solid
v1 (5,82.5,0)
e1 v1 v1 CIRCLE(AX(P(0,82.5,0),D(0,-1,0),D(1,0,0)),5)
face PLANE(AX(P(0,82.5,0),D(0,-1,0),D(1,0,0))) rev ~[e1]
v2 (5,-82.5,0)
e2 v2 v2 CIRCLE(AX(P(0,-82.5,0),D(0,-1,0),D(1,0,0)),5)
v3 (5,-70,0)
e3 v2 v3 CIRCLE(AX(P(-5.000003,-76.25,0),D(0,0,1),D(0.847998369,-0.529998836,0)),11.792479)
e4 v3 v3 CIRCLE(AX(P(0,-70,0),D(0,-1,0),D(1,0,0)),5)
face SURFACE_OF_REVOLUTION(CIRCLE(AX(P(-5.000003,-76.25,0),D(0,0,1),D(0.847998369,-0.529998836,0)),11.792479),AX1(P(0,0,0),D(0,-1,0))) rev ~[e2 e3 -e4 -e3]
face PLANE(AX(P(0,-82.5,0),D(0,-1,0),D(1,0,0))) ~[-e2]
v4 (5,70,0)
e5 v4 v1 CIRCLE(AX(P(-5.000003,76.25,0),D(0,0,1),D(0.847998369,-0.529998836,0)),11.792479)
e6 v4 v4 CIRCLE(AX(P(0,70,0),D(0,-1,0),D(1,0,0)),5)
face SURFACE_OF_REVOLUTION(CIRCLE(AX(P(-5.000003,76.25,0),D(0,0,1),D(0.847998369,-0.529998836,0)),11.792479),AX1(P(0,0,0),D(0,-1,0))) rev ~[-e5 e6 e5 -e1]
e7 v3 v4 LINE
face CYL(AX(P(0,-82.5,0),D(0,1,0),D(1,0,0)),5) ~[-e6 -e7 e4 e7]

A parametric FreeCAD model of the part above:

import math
import FreeCAD as App
import Part
import Sketcher
from FreeCAD import Vector

doc = App.newDocument("Part")
params = doc.addObject("Spreadsheet::Sheet", "Params")
for row, (alias, value) in enumerate([
    ("sketch1_width", "5 mm"),
    ("sketch1_height", "165 mm"),
    ("sketch1_height2", "140 mm"),
    ("revolution_angle", "360 deg"),
], start=1):
    params.set(f"A{row}", alias)
    params.set(f"B{row}", "=" + value)
    params.setAlias(f"B{row}", alias)

body = doc.addObject("PartDesign::Body", "Body")

sketch1 = body.newObject("Sketcher::SketchObject", "Sketch")
sketch1.AttachmentSupport = (doc.getObject("XY_Plane"), [""])
sketch1.MapMode = "FlatFace"
sketch1.addGeometry([
    Part.LineSegment(Vector(5, 82, 0), Vector(0, 82, 0)),
    Part.LineSegment(Vector(0, 82, 0), Vector(0, -82, 0)),
    Part.LineSegment(Vector(0, -82, 0), Vector(5, -82, 0)),
    Part.ArcOfCircle(Part.Circle(Vector(-5, -76, 0), Vector(0, 0, 1), 12), math.radians(-32), math.radians(32)),
    Part.LineSegment(Vector(5, -70, 0), Vector(5, 70, 0)),
    Part.ArcOfCircle(Part.Circle(Vector(-5, 76, 0), Vector(0, 0, 1), 12), math.radians(-32), math.radians(32)),
], False)
sketch1.addConstraint([
    Sketcher.Constraint("Coincident", 0, 2, 1, 1),
    Sketcher.Constraint("Coincident", 1, 2, 2, 1),
    Sketcher.Constraint("Coincident", 2, 2, 3, 1),
    Sketcher.Constraint("Coincident", 3, 2, 4, 1),
    Sketcher.Constraint("Coincident", 4, 2, 5, 1),
    Sketcher.Constraint("Coincident", 5, 2, 0, 1),
    Sketcher.Constraint("Horizontal", 0),
    Sketcher.Constraint("Vertical", 1),
    Sketcher.Constraint("Horizontal", 2),
    Sketcher.Constraint("Vertical", 4),
    Sketcher.Constraint("Equal", 3, 5),
    Sketcher.Constraint("Symmetric", 0, 2, 1, 2, -1, 1),
    Sketcher.Constraint("Symmetric", 3, 3, 5, 3, -1),
    Sketcher.Constraint("Vertical", 2, 2, 3, 2),
    Sketcher.Constraint("DistanceX", 0, 2, 0, 1, 5.0),
    Sketcher.Constraint("DistanceY", 1, 2, 1, 1, 165.0),
    Sketcher.Constraint("DistanceY", 4, 1, 4, 2, 140.0),
    Sketcher.Constraint("Radius", 3, 11.792479),
])
sketch1.setExpression("Constraints[14]", "Params.sketch1_width")
sketch1.setExpression("Constraints[15]", "Params.sketch1_height")
sketch1.setExpression("Constraints[16]", "Params.sketch1_height2")
revolution = body.newObject("PartDesign::Revolution", "Revolution")
revolution.Profile = sketch1
revolution.ReferenceAxis = (sketch1, ["V_Axis"])
revolution.setExpression("Angle", "Params.revolution_angle")

doc.recompute()
